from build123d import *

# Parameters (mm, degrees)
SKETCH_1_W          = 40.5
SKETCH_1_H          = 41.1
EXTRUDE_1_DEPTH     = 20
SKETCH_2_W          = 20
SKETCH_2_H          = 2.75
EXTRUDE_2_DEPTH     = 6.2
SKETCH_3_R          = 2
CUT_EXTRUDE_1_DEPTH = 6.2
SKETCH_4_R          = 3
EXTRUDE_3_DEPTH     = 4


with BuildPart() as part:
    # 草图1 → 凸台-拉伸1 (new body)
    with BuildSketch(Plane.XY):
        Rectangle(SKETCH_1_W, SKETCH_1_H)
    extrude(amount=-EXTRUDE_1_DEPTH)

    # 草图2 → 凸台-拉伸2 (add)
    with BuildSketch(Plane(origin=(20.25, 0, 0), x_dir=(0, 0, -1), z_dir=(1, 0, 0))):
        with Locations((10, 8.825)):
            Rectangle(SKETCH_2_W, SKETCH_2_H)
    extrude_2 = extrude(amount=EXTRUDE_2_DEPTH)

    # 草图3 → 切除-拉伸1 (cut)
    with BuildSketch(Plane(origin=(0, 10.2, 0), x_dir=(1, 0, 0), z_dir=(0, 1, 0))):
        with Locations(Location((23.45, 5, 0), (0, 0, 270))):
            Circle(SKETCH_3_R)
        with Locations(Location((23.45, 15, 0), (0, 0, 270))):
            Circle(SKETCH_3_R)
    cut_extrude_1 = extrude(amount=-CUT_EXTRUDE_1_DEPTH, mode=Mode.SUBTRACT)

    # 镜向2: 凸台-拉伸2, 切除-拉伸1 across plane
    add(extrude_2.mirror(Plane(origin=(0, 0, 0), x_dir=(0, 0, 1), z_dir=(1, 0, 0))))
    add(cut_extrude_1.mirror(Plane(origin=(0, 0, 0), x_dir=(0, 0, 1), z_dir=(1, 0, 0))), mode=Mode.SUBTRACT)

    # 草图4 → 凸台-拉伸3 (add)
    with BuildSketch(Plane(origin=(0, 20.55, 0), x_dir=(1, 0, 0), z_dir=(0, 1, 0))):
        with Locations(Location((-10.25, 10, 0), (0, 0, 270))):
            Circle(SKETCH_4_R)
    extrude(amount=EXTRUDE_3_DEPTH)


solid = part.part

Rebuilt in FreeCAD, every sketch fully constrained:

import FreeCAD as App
import Part
import Sketcher
from FreeCAD import Vector

doc = App.newDocument("Part")
body = doc.addObject("PartDesign::Body", "Body")

# Sketch on XY plane
sketch1 = body.newObject("Sketcher::SketchObject", "Sketch")
sketch1.AttachmentSupport = (doc.getObject("XY_Plane"), [""])
sketch1.MapMode = "FlatFace"
sketch1.addGeometry([
    Part.LineSegment(Vector(-20.25, 20.55, 0), Vector(-20.25, -20.55, 0)),
    Part.LineSegment(Vector(-20.25, -20.55, 0), Vector(20.25, -20.55, 0)),
    Part.LineSegment(Vector(20.25, -20.55, 0), Vector(20.25, 20.55, 0)),
    Part.LineSegment(Vector(20.25, 20.55, 0), Vector(-20.25, 20.55, 0)),
], False)
sketch1.addConstraint([
    Sketcher.Constraint("Coincident", 0, 2, 1, 1),
    Sketcher.Constraint("Coincident", 1, 2, 2, 1),
    Sketcher.Constraint("Coincident", 2, 2, 3, 1),
    Sketcher.Constraint("Coincident", 3, 2, 0, 1),
    Sketcher.Constraint("Vertical", 0),
    Sketcher.Constraint("Horizontal", 1),
    Sketcher.Constraint("Vertical", 2),
    Sketcher.Constraint("Horizontal", 3),
    Sketcher.Constraint("Symmetric", 0, 2, 2, 2, -1, 1),
    Sketcher.Constraint("DistanceX", 1, 1, 1, 2, 40.5),
    Sketcher.Constraint("DistanceY", 0, 2, 0, 1, 41.1),
])
pad1 = body.newObject("PartDesign::Pad", "Pad")
pad1.Profile = sketch1
pad1.Length = 20
pad1.Reversed = True

# Sketch on YZ plane
sketch2 = body.newObject("Sketcher::SketchObject", "Sketch001")
sketch2.AttachmentSupport = (doc.getObject("YZ_Plane"), [""])
sketch2.MapMode = "FlatFace"
sketch2.AttachmentOffset = App.Placement(Vector(0, 0, 20.25), App.Rotation())
sketch2.addGeometry([
    Part.LineSegment(Vector(10.2, 0, 0), Vector(7.45, 0, 0)),
    Part.LineSegment(Vector(7.45, 0, 0), Vector(7.45, -20, 0)),
    Part.LineSegment(Vector(7.45, -20, 0), Vector(10.2, -20, 0)),
    Part.LineSegment(Vector(10.2, -20, 0), Vector(10.2, 0, 0)),
], False)
sketch2.addConstraint([
    Sketcher.Constraint("Coincident", 0, 2, 1, 1),
    Sketcher.Constraint("Coincident", 1, 2, 2, 1),
    Sketcher.Constraint("Coincident", 2, 2, 3, 1),
    Sketcher.Constraint("Coincident", 3, 2, 0, 1),
    Sketcher.Constraint("Horizontal", 0),
    Sketcher.Constraint("Vertical", 1),
    Sketcher.Constraint("Horizontal", 2),
    Sketcher.Constraint("Vertical", 3),
    Sketcher.Constraint("PointOnObject", 0, 2, -1),
    Sketcher.Constraint("DistanceY", 1, 2, 1, 1, 20.0),
    Sketcher.Constraint("DistanceX", 0, 2, 0, 1, 2.75),
    Sketcher.Constraint("DistanceX", -1, 1, 2, 2, 10.2),
])
pad2 = body.newObject("PartDesign::Pad", "Pad001")
pad2.Profile = sketch2
pad2.Length = 6.2

# Sketch on XZ plane
sketch3 = body.newObject("Sketcher::SketchObject", "Sketch002")
sketch3.AttachmentSupport = (doc.getObject("XZ_Plane"), [""])
sketch3.MapMode = "FlatFace"
sketch3.AttachmentOffset = App.Placement(Vector(0, 0, -10.2), App.Rotation())
sketch3.addGeometry([
    Part.Circle(Vector(23.45, -5, 0), Vector(0, 0, 1), 2),
    Part.Circle(Vector(23.45, -15, 0), Vector(0, 0, 1), 2),
], False)
sketch3.addConstraint([
    Sketcher.Constraint("Equal", 0, 1),
    Sketcher.Constraint("Vertical", 0, 3, 1, 3),
    Sketcher.Constraint("Diameter", 0, 4.0),
    Sketcher.Constraint("DistanceY", 0, 3, -1, 1, 5.0),
    Sketcher.Constraint("DistanceY", 1, 3, -1, 1, 15.0),
    Sketcher.Constraint("DistanceX", -1, 1, 0, 3, 23.45),
])
pocket1 = body.newObject("PartDesign::Pocket", "Pocket")
pocket1.Profile = sketch3
pocket1.Length = 6.2
pocket1.Reversed = True
doc.recompute()

mirrored = body.newObject("PartDesign::Mirrored", "Mirrored")
mirrored.Originals = [pad2, pocket1]
mirrored.MirrorPlane = (doc.getObject("YZ_Plane"), [""])
body.Tip = mirrored

# Sketch on XZ plane
sketch4 = body.newObject("Sketcher::SketchObject", "Sketch003")
sketch4.AttachmentSupport = (doc.getObject("XZ_Plane"), [""])
sketch4.MapMode = "FlatFace"
sketch4.AttachmentOffset = App.Placement(Vector(0, 0, -20.55), App.Rotation())
sketch4.addGeometry(Part.Circle(Vector(-10.25, -10, 0), Vector(0, 0, 1), 3), False)
sketch4.addConstraint([
    Sketcher.Constraint("Diameter", 0, 6.0),
    Sketcher.Constraint("DistanceY", 0, 3, -1, 1, 10.0),
    Sketcher.Constraint("DistanceX", 0, 3, -1, 1, 10.25),
])
pad3 = body.newObject("PartDesign::Pad", "Pad002")
pad3.Profile = sketch4
pad3.Length = 4
pad3.Reversed = True

doc.recompute()
